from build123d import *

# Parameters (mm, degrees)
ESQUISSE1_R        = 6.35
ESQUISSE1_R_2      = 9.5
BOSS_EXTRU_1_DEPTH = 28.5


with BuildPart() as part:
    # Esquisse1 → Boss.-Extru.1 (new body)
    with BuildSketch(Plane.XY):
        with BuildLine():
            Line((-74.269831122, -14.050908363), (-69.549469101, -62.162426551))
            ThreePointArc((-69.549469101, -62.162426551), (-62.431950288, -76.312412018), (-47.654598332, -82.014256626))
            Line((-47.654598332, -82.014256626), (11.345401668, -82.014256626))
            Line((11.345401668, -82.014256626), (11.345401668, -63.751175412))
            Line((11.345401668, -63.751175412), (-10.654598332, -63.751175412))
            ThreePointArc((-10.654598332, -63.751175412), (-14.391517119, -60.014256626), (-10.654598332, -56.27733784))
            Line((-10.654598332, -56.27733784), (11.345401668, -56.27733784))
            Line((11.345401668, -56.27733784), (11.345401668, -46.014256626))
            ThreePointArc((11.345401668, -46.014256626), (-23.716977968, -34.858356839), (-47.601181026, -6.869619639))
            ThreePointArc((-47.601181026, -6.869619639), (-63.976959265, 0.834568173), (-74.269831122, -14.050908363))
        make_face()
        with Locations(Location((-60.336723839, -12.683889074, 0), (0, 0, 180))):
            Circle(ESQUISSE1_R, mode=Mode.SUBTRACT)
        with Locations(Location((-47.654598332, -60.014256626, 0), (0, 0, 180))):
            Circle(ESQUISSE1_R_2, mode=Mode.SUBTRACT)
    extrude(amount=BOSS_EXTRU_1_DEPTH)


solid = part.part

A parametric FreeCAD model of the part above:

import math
import FreeCAD as App
import Part
import Sketcher
from FreeCAD import Vector

doc = App.newDocument("Part")
body = doc.addObject("PartDesign::Body", "Body")

# Sketch on XY plane
sketch1 = body.newObject("Sketcher::SketchObject", "Sketch")
sketch1.AttachmentSupport = (doc.getObject("XY_Plane"), [""])
sketch1.MapMode = "FlatFace"
sketch1.addGeometry([
    Part.LineSegment(Vector(-74.269831, -14.050908, 0), Vector(-69.549469, -62.162427, 0)),  # 0
    Part.ArcOfCircle(Part.Circle(Vector(-47.654598, -60.014257, 0), Vector(0, 0, 1), 22), math.radians(-174.396477), math.radians(-90)),  # 1
    Part.LineSegment(Vector(-47.654598, -82.014257, 0), Vector(11.345402, -82.014257, 0)),  # 2
    Part.LineSegment(Vector(11.345402, -82.014257, 0), Vector(11.345402, -63.751175, 0)),  # 3
    Part.LineSegment(Vector(11.345402, -63.751175, 0), Vector(-10.654598, -63.751175, 0)),  # 4
    Part.ArcOfCircle(Part.Circle(Vector(-10.654598, -60.014257, 0), Vector(0, 0, 1), 3.736919), math.radians(90), math.radians(270)),  # 5
    Part.LineSegment(Vector(-10.654598, -56.277338, 0), Vector(11.345402, -56.277338, 0)),  # 6
    Part.LineSegment(Vector(11.345402, -56.277338, 0), Vector(11.345402, -46.014257, 0)),  # 7
    Part.ArcOfCircle(Part.Circle(Vector(13.347525, 20.955823, 0), Vector(0, 0, 1), 67), math.radians(-155.461468), math.radians(-91.712392)),  # 8
    Part.ArcOfCircle(Part.Circle(Vector(-60.336732, -12.683891, 0), Vector(0, 0, 1), 14), math.radians(24.538532), math.radians(185.603523)),  # 9
    Part.Circle(Vector(-47.654598, -60.014257, 0), Vector(0, 0, 1), 9.5),  # 10
    Part.Circle(Vector(-60.336724, -12.683889, 0), Vector(0, 0, 1), 6.35),  # 11
], False)
sketch1.addConstraint([
    Sketcher.Constraint("Coincident", 0, 2, 1, 1),
    Sketcher.Constraint("Coincident", 1, 2, 2, 1),
    Sketcher.Constraint("Coincident", 2, 2, 3, 1),
    Sketcher.Constraint("Coincident", 3, 2, 4, 1),
    Sketcher.Constraint("Coincident", 4, 2, 5, 2),
    Sketcher.Constraint("Coincident", 5, 1, 6, 1),
    Sketcher.Constraint("Coincident", 6, 2, 7, 1),
    Sketcher.Constraint("Coincident", 7, 2, 8, 2),
    Sketcher.Constraint("Coincident", 8, 1, 9, 1),
    Sketcher.Constraint("Coincident", 9, 2, 0, 1),
    Sketcher.Constraint("Horizontal", 2),
    Sketcher.Constraint("Vertical", 3),
    Sketcher.Constraint("Horizontal", 4),
    Sketcher.Constraint("Horizontal", 6),
    Sketcher.Constraint("Vertical", 7),
    Sketcher.Constraint("Coincident", 10, 3, 1, 3),
    Sketcher.Constraint("Coincident", 11, 3, 9, 3),
    Sketcher.Constraint("Diameter", 10, 19.0),
    Sketcher.Constraint("Radius", 1, 22.0),
    Sketcher.Constraint("Radius", 8, 67.0),
    Sketcher.Constraint("Radius", 9, 14.0),
    Sketcher.Constraint("Diameter", 11, 12.7),
    Sketcher.Constraint("DistanceX", 2, 1, 2, 2, 59.0),
    Sketcher.Constraint("DistanceX", 4, 2, 4, 1, 22.0),
    Sketcher.Constraint("DistanceX", 6, 1, 6, 2, 22.0),
    Sketcher.Constraint("DistanceX", 1, 3, 5, 3, 37.0),
    Sketcher.Constraint("DistanceX", 1, 2, 5, 3, 37.0),
    Sketcher.Constraint("DistanceY", 1, 2, 5, 3, 22.0),
    Sketcher.Constraint("DistanceX", 5, 1, 3, 2, 22.0),
    Sketcher.Constraint("DistanceY", 5, 3, 7, 2, 14.0),
    Sketcher.Constraint("Radius", 5, 3.736919),
    Sketcher.Constraint("DistanceX", 1, 3, -1, 1, 47.654598),
    Sketcher.Constraint("DistanceX", 9, 2, 9, 3, 13.9331),
    Sketcher.Constraint("DistanceX", 9, 3, -1, 1, 60.336732),
    Sketcher.Constraint("DistanceY", 9, 3, -1, 1, 12.683891),
    Sketcher.Constraint("DistanceX", 0, 2, -1, 1, 69.549469),
    Sketcher.Constraint("DistanceX", 8, 1, -1, 1, 47.601181),
    Sketcher.Constraint("DistanceY", 5, 3, 8, 3, 80.970079),
])
pad1 = body.newObject("PartDesign::Pad", "Pad")
pad1.Profile = sketch1
pad1.Length = 28.5

doc.recompute()
